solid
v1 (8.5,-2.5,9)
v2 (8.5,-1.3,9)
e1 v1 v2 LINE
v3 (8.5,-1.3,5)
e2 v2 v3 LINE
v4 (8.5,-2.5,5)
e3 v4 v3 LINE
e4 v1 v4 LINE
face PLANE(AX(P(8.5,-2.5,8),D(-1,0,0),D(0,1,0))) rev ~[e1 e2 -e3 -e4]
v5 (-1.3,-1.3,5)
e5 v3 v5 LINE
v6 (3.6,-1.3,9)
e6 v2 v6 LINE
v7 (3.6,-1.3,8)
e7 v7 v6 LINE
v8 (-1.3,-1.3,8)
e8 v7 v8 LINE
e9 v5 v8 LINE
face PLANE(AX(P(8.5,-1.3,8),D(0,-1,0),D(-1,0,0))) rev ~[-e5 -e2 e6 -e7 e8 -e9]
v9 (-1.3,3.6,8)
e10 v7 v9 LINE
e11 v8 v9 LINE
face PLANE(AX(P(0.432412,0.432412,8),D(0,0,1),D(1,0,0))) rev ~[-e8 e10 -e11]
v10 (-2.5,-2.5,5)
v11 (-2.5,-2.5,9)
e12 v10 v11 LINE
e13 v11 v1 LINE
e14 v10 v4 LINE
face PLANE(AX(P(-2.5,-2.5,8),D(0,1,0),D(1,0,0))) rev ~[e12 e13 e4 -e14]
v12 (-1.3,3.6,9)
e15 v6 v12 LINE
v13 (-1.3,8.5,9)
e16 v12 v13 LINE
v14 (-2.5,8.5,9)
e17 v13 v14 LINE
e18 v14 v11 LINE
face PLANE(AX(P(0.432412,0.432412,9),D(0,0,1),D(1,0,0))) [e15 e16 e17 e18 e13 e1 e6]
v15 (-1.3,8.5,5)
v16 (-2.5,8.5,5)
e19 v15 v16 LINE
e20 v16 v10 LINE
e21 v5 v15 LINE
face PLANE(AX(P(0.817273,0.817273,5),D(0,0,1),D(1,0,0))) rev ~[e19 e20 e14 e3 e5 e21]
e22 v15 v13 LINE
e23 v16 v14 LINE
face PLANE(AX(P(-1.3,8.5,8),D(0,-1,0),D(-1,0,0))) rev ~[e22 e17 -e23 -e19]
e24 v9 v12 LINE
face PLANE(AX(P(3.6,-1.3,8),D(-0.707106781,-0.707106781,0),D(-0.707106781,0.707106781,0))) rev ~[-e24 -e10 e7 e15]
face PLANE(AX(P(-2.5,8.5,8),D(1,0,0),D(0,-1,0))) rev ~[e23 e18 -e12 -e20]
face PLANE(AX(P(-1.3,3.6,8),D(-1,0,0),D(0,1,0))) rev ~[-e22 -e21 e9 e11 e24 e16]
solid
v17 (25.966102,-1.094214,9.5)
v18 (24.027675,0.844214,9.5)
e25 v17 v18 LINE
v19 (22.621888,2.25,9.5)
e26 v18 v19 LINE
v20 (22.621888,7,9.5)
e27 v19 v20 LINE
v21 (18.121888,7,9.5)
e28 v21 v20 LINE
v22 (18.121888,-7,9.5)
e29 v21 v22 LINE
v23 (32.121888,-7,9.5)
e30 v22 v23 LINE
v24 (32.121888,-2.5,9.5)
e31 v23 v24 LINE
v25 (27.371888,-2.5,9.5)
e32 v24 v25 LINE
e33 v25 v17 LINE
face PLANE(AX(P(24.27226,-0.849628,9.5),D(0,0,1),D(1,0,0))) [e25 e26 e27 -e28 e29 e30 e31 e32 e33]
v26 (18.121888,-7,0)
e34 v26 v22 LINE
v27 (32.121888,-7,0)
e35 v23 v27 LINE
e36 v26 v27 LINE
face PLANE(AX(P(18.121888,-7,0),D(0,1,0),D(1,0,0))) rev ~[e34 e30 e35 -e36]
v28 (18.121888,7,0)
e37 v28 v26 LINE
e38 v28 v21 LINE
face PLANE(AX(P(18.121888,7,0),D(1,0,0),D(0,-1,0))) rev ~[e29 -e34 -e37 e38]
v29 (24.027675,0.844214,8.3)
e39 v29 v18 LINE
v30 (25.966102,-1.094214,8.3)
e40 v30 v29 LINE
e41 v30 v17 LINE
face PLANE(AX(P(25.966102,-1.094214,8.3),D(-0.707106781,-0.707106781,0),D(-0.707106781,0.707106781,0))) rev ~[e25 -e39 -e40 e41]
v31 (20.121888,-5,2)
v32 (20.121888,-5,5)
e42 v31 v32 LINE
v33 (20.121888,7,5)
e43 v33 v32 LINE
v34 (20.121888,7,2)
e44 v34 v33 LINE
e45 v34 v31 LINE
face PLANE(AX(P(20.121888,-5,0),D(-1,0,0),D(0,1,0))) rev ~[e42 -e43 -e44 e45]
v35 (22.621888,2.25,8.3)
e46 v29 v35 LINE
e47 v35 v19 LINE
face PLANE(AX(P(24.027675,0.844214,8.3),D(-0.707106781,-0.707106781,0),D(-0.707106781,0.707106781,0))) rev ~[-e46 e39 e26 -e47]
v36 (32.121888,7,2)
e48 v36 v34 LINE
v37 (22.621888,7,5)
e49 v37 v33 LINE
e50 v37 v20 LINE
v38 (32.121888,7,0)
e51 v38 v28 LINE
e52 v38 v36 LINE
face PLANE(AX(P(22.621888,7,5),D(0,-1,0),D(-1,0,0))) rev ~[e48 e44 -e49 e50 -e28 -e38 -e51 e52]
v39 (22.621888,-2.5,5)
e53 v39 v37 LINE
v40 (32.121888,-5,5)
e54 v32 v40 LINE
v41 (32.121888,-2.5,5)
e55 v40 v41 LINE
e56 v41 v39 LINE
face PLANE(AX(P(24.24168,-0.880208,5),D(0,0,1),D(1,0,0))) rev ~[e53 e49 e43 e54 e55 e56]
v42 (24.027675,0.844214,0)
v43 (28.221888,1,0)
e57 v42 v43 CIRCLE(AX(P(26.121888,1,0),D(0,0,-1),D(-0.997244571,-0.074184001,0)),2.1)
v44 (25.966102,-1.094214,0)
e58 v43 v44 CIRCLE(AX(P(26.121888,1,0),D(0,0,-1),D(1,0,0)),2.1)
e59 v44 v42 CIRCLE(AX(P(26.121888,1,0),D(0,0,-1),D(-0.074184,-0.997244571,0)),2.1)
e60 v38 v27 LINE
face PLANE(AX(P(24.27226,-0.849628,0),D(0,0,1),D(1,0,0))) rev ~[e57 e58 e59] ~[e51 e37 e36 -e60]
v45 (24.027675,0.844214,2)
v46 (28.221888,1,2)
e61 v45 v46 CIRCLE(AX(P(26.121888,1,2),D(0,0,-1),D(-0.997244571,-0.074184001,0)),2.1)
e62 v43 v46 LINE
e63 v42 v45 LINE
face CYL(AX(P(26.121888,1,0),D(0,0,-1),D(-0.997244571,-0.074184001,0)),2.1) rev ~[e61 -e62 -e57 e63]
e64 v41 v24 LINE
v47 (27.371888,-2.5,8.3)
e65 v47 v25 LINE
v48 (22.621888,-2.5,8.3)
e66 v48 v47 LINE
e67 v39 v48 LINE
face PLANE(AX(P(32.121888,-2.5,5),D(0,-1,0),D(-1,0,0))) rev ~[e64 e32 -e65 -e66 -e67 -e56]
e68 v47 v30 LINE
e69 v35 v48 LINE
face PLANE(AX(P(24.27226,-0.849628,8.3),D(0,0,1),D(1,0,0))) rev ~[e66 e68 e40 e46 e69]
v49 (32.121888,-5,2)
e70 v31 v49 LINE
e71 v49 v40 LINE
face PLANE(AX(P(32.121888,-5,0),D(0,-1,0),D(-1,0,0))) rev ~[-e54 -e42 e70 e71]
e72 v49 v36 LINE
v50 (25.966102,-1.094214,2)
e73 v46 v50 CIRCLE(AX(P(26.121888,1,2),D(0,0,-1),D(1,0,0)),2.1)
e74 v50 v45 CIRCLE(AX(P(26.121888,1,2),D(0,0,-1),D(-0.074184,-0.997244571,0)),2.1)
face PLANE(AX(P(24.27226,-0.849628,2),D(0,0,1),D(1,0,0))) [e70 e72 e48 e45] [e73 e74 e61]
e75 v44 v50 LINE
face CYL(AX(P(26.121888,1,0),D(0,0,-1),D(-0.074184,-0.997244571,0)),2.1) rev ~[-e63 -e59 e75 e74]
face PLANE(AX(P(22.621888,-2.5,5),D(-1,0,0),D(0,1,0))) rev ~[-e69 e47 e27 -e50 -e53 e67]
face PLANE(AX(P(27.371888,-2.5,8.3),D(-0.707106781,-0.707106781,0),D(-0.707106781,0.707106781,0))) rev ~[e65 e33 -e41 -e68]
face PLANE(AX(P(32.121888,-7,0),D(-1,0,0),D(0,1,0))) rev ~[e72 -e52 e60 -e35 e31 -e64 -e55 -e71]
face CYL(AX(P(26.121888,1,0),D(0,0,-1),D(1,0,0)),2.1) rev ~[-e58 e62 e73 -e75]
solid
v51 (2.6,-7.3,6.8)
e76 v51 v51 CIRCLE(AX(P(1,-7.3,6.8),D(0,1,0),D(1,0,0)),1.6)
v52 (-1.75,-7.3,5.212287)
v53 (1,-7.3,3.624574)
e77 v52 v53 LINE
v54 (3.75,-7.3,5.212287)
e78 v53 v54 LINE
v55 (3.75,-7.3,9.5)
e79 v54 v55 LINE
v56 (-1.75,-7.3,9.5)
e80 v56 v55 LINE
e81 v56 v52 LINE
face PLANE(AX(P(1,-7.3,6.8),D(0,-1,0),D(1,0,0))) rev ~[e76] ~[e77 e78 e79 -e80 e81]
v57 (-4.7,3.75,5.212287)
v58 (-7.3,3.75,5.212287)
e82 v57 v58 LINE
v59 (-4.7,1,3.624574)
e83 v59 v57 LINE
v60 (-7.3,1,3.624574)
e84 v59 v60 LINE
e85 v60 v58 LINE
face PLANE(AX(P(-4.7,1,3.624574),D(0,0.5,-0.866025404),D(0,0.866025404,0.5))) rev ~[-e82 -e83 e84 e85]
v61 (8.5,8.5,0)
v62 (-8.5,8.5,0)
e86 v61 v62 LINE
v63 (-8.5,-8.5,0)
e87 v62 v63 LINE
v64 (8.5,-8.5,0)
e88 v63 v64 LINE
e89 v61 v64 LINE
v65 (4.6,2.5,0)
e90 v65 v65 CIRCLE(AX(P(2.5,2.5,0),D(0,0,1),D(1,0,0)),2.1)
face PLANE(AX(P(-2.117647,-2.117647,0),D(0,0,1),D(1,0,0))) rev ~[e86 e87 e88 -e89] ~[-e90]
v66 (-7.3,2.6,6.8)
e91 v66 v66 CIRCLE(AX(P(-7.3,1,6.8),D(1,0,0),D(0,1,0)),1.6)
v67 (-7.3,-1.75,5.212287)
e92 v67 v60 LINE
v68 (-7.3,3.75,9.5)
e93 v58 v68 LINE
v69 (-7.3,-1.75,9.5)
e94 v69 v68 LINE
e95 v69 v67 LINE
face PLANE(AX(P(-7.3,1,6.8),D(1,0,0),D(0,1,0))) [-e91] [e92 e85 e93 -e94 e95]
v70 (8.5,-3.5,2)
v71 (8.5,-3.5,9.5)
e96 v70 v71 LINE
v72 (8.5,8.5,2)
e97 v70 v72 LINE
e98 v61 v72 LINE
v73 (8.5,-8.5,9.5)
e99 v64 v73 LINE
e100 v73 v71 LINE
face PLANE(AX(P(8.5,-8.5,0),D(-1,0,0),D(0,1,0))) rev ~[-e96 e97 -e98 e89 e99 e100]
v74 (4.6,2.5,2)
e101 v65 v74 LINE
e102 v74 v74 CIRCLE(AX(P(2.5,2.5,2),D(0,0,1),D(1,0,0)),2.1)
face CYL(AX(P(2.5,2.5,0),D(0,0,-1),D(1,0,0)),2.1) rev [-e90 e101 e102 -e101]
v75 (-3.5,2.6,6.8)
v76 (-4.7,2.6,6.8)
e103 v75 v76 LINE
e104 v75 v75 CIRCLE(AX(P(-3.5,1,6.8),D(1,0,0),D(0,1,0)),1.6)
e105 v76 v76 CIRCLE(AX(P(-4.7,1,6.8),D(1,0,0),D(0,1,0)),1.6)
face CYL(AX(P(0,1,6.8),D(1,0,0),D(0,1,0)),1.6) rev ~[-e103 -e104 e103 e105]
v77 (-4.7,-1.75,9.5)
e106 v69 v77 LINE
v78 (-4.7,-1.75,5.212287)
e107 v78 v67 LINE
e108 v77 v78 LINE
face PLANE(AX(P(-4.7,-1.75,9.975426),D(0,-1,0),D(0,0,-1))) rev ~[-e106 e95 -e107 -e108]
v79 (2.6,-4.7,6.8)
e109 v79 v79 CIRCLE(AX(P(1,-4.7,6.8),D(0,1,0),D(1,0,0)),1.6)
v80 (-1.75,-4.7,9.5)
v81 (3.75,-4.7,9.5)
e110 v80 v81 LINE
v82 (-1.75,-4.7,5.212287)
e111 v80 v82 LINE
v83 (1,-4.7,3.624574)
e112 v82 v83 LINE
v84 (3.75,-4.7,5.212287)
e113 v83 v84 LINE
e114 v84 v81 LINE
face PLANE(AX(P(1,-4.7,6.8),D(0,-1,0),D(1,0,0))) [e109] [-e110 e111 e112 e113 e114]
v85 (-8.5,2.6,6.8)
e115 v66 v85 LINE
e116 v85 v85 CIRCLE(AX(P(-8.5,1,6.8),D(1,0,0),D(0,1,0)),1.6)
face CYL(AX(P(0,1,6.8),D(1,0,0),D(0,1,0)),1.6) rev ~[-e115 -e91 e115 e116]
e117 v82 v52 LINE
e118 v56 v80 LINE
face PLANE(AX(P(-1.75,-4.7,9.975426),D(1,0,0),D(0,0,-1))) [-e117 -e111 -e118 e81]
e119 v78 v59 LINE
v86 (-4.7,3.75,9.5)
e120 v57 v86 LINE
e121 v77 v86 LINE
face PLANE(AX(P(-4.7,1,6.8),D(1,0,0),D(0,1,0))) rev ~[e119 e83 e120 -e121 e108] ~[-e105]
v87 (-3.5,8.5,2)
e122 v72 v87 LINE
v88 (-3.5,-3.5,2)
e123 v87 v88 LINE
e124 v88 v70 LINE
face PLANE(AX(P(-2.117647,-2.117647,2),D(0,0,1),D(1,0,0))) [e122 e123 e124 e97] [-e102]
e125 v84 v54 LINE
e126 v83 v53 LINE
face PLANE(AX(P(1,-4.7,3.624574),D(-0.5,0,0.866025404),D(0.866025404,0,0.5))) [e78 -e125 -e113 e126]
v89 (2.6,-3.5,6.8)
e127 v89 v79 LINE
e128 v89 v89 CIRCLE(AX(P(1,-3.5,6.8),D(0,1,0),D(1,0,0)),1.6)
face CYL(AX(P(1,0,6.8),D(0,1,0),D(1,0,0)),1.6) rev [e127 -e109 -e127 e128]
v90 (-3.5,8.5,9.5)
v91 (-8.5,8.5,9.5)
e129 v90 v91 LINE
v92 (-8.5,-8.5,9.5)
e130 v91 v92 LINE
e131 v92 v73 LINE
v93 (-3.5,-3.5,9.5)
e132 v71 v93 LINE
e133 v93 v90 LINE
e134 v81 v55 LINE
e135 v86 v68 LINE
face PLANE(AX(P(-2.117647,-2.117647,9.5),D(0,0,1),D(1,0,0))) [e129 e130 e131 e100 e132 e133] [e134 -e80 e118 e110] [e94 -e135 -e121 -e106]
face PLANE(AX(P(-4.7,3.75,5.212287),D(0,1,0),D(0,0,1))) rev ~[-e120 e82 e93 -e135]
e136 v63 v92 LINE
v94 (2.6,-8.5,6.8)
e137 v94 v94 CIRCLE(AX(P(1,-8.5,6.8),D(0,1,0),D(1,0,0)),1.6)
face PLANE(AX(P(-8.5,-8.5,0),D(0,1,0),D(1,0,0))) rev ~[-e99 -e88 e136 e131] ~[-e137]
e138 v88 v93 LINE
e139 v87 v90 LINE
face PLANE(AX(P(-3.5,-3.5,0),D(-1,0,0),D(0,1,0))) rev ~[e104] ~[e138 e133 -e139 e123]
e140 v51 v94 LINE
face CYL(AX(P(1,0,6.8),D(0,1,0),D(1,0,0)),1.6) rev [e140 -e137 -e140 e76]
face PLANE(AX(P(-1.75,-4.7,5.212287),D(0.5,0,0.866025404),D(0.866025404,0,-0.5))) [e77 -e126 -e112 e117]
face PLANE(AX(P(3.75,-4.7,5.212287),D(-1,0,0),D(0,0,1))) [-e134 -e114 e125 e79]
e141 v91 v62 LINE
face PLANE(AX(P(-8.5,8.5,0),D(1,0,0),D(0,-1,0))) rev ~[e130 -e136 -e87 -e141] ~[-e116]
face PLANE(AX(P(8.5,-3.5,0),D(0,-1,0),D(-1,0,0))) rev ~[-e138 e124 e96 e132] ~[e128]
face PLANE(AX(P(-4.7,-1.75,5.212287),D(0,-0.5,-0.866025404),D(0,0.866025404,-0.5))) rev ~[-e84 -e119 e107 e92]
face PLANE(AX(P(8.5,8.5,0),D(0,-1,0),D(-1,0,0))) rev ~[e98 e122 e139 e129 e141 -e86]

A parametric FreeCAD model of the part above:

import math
import FreeCAD as App
import Part
import Sketcher
from FreeCAD import Vector
Q = App.Units.Quantity


def add_polygon(sketch, points):
    """Adds a closed chain of lines whose ends are joined by coincident constraints."""
    first, n = sketch.GeometryCount, len(points)
    for a, b in zip(points, points[1:] + points[:1]):
        sketch.addGeometry(Part.LineSegment(App.Vector(*a, 0), App.Vector(*b, 0)), False)
    for i in range(n):
        sketch.addConstraint(Sketcher.Constraint("Coincident", first + i, 2, first + (i + 1) % n, 1))

doc = App.newDocument("Part")
body = doc.addObject("PartDesign::Body", "Body")

sketch1 = body.newObject("Sketcher::SketchObject", "Sketch")
sketch1.AttachmentSupport = (doc.getObject("XY_Plane"), [""])
sketch1.MapMode = "FlatFace"
add_polygon(sketch1, [(-8.5, 8.5), (-8.5, -8.5), (8.5, -8.5), (8.5, 8.5)])
sketch1.addGeometry(Part.Circle(Vector(2.5, 2.5, 0), Vector(0, 0, 1), 2.1), False)
sketch1.addConstraint([
    Sketcher.Constraint("Vertical", 0),
    Sketcher.Constraint("Horizontal", 1),
    Sketcher.Constraint("Vertical", 2),
    Sketcher.Constraint("Horizontal", 3),
    Sketcher.Constraint("Symmetric", 0, 2, 2, 2, -1, 1),
    Sketcher.Constraint("Equal", 3, 0),
    Sketcher.Constraint("Diameter", 4, Q("4.2 mm")),
    Sketcher.Constraint("DistanceX", 1, 1, 1, 2, Q("17 mm")),
    Sketcher.Constraint("DistanceX", 0, 2, 4, 3, Q("11 mm")),
    Sketcher.Constraint("DistanceY", 0, 2, 4, 3, Q("11 mm")),
])
pad1 = body.newObject("PartDesign::Pad", "Pad")
pad1.Profile = sketch1
pad1.Length = 2

sketch2 = body.newObject("Sketcher::SketchObject", "Sketch001")
sketch2.AttachmentSupport = (doc.getObject("XY_Plane"), [""])
sketch2.MapMode = "FlatFace"
add_polygon(sketch2, [(-4, 8), (-8, 8), (-8, -8), (8, -8), (8, -4), (-4, -4)])
sketch2.addConstraint([
    Sketcher.Constraint("Horizontal", 0),
    Sketcher.Constraint("Vertical", 1),
    Sketcher.Constraint("Horizontal", 2),
    Sketcher.Constraint("Vertical", 3),
    Sketcher.Constraint("Horizontal", 4),
    Sketcher.Constraint("Vertical", 5),
    Sketcher.Constraint("Symmetric", 0, 2, 2, 2, -1, 1),
    Sketcher.Constraint("Equal", 2, 1),
    Sketcher.Constraint("Equal", 0, 3),
    Sketcher.Constraint("DistanceX", 0, 2, 0, 1, Q("5 mm")),
    Sketcher.Constraint("DistanceX", 2, 1, 2, 2, Q("17 mm")),
])
pad2 = body.newObject("PartDesign::Pad", "Pad001")
pad2.Profile = sketch2
pad2.Length = 9.5

sketch3 = body.newObject("Sketcher::SketchObject", "Sketch002")
sketch3.AttachmentSupport = (doc.getObject("YZ_Plane"), [""])
sketch3.MapMode = "FlatFace"
sketch3.addGeometry(Part.Circle(Vector(1, 6.8, 0), Vector(0, 0, 1), 1.6), False)
sketch3.addConstraint([
    Sketcher.Constraint("Diameter", 0, Q("3.2 mm")),
    Sketcher.Constraint("DistanceX", -1, 1, 0, 3, Q("1 mm")),
    Sketcher.Constraint("DistanceY", -1, 1, 0, 3, Q("6.8 mm")),
])
pocket1 = body.newObject("PartDesign::Pocket", "Pocket")
pocket1.Profile = sketch3
pocket1.Type = "ThroughAll"

sketch4 = body.newObject("Sketcher::SketchObject", "Sketch003")
sketch4.AttachmentSupport = (doc.getObject("YZ_Plane"), [""])
sketch4.MapMode = "FlatFace"
sketch4.AttachmentOffset = App.Placement(Vector(0, 0, -4.7), App.Rotation())
add_polygon(sketch4, [(3.8, 5.2), (3.8, 10), (-1.8, 10), (-1.8, 5.2), (1, 3.6)])
sketch4.addConstraint([
    Sketcher.Constraint("Vertical", 0),
    Sketcher.Constraint("Horizontal", 1),
    Sketcher.Constraint("Vertical", 2),
    Sketcher.Constraint("Horizontal", 2, 2, 4, 2),
    Sketcher.Constraint("Equal", 3, 4),
    Sketcher.Constraint("Angle", 3, Q("-30 deg")),
    Sketcher.Constraint("DistanceX", 1, 2, 1, 1, Q("5.5 mm")),
    Sketcher.Constraint("DistanceX", -1, 1, 3, 2, Q("1 mm")),
    Sketcher.Constraint("DistanceY", 0, 1, 0, 2, Q("4.76314 mm")),
    Sketcher.Constraint("DistanceY", -1, 1, 0, 2, Q("9.975426 mm")),
])
pocket2 = body.newObject("PartDesign::Pocket", "Pocket001")
pocket2.Profile = sketch4
pocket2.Length = 2.6

sketch5 = body.newObject("Sketcher::SketchObject", "Sketch004")
sketch5.AttachmentSupport = (doc.getObject("XZ_Plane"), [""])
sketch5.MapMode = "FlatFace"
sketch5.addGeometry(Part.Circle(Vector(1, 6.8, 0), Vector(0, 0, 1), 1.6), False)
sketch5.addConstraint([
    Sketcher.Constraint("Diameter", 0, Q("3.2 mm")),
    Sketcher.Constraint("DistanceX", -1, 1, 0, 3, Q("1 mm")),
    Sketcher.Constraint("DistanceY", -1, 1, 0, 3, Q("6.8 mm")),
])
pocket3 = body.newObject("PartDesign::Pocket", "Pocket002")
pocket3.Profile = sketch5
pocket3.Type = "ThroughAll"
pocket3.Reversed = True

sketch6 = body.newObject("Sketcher::SketchObject", "Sketch005")
sketch6.AttachmentSupport = (doc.getObject("XZ_Plane"), [""])
sketch6.MapMode = "FlatFace"
sketch6.AttachmentOffset = App.Placement(Vector(0, 0, 4.7), App.Rotation())
add_polygon(sketch6, [(-1.8, 5.2), (1, 3.6), (3.8, 5.2), (3.8, 10), (-1.8, 10)])
sketch6.addConstraint([
    Sketcher.Constraint("Vertical", 2),
    Sketcher.Constraint("Horizontal", 3),
    Sketcher.Constraint("Vertical", 4),
    Sketcher.Constraint("Horizontal", 1, 2, 4, 2),
    Sketcher.Constraint("Equal", 0, 1),
    Sketcher.Constraint("Angle", 0, Q("-30 deg")),
    Sketcher.Constraint("DistanceX", 3, 2, 3, 1, Q("5.5 mm")),
    Sketcher.Constraint("DistanceX", -1, 1, 0, 2, Q("1 mm")),
    Sketcher.Constraint("DistanceY", 2, 1, 2, 2, Q("4.76314 mm")),
    Sketcher.Constraint("DistanceY", -1, 1, 0, 2, Q("3.624574 mm")),
])
pocket4 = body.newObject("PartDesign::Pocket", "Pocket003")
pocket4.Profile = sketch6
pocket4.Length = 2.6
pocket4.Reversed = True
body2 = doc.addObject("PartDesign::Body", "Body001")

sketch7 = body2.newObject("Sketcher::SketchObject", "Sketch006")
sketch7.AttachmentSupport = (doc.getObject("XY_Plane001"), [""])
sketch7.MapMode = "FlatFace"
sketch7.AttachmentOffset = App.Placement(Vector(0, 0, 5), App.Rotation())
add_polygon(sketch7, [(-1.3, 8.5), (-2.5, 8.5), (-2.5, -2.5), (8.5, -2.5), (8.5, -1.3), (-1.3, -1.3)])
sketch7.addConstraint([
    Sketcher.Constraint("Horizontal", 0),
    Sketcher.Constraint("Vertical", 1),
    Sketcher.Constraint("Horizontal", 2),
    Sketcher.Constraint("Vertical", 3),
    Sketcher.Constraint("Horizontal", 4),
    Sketcher.Constraint("Vertical", 5),
    Sketcher.Constraint("Equal", 2, 1),
    Sketcher.Constraint("Equal", 0, 3),
    Sketcher.Constraint("DistanceX", 2, 1, 2, 2, Q("11 mm")),
    Sketcher.Constraint("DistanceX", 0, 2, 0, 1, Q("1.2 mm")),
    Sketcher.Constraint("DistanceX", 0, 2, -1, 1, Q("2.5 mm")),
    Sketcher.Constraint("DistanceY", -1, 1, 0, 2, Q("8.5 mm")),
])
pad3 = body2.newObject("PartDesign::Pad", "Pad002")
pad3.Profile = sketch7
pad3.Length = 3

sketch8 = body2.newObject("Sketcher::SketchObject", "Sketch007")
sketch8.AttachmentSupport = (doc.getObject("XY_Plane001"), [""])
sketch8.MapMode = "FlatFace"
sketch8.AttachmentOffset = App.Placement(Vector(0, 0, 8), App.Rotation())
add_polygon(sketch8, [(3.6, -1.3), (-1.3, 3.6), (-1.3, 8.5), (-2.5, 8.5), (-2.5, -2.5), (8.5, -2.5), (8.5, -1.3)])
sketch8.addConstraint([
    Sketcher.Constraint("Vertical", 1),
    Sketcher.Constraint("Horizontal", 2),
    Sketcher.Constraint("Vertical", 3),
    Sketcher.Constraint("Horizontal", 4),
    Sketcher.Constraint("Vertical", 5),
    Sketcher.Constraint("Horizontal", 6),
    Sketcher.Constraint("Equal", 6, 1),
    Sketcher.Constraint("Equal", 4, 3),
    Sketcher.Constraint("Equal", 2, 5),
    Sketcher.Constraint("DistanceX", 4, 1, 4, 2, Q("11 mm")),
    Sketcher.Constraint("DistanceX", 2, 2, 2, 1, Q("1.2 mm")),
    Sketcher.Constraint("DistanceX", 6, 2, 6, 1, Q("4.9 mm")),
    Sketcher.Constraint("DistanceX", 0, 2, -1, 1, Q("1.3 mm")),
    Sketcher.Constraint("DistanceY", -1, 1, 0, 2, Q("3.6 mm")),
])
pad4 = body2.newObject("PartDesign::Pad", "Pad003")
pad4.Profile = sketch8
pad4.Length = 1
body3 = doc.addObject("PartDesign::Body", "Body002")

sketch9 = body3.newObject("Sketcher::SketchObject", "Sketch008")
sketch9.AttachmentSupport = (doc.getObject("XY_Plane002"), [""])
sketch9.MapMode = "FlatFace"
add_polygon(sketch9, [(32.1, 7), (18.1, 7), (18.1, -7), (32.1, -7)])
sketch9.addGeometry(Part.ArcOfCircle(Part.Circle(Vector(26.1, 1, 0), Vector(0, 0, 1), 2.1), math.radians(-94), math.radians(0)), False)
sketch9.addGeometry(Part.ArcOfCircle(Part.Circle(Vector(26.1, 1, 0), Vector(0, 0, 1), 2.1), math.radians(-176), math.radians(-94)), False)
sketch9.addGeometry(Part.ArcOfCircle(Part.Circle(Vector(26.1, 1, 0), Vector(0, 0, 1), 2.1), math.radians(0), math.radians(184)), False)
sketch9.addConstraint([
    Sketcher.Constraint("Tangent", 4, 1, 5, 2),
    Sketcher.Constraint("Tangent", 5, 1, 6, 2),
    Sketcher.Constraint("Tangent", 6, 1, 4, 2),
    Sketcher.Constraint("Horizontal", 0),
    Sketcher.Constraint("Vertical", 1),
    Sketcher.Constraint("Horizontal", 2),
    Sketcher.Constraint("Vertical", 3),
    Sketcher.Constraint("Horizontal", 5, 3, 6, 1),
    Sketcher.Constraint("Equal", 2, 1),
    Sketcher.Constraint("Radius", 4, Q("2.1 mm")),
    Sketcher.Constraint("DistanceX", 0, 2, 0, 1, Q("14 mm")),
    Sketcher.Constraint("DistanceY", -1, 1, 4, 3, Q("1 mm")),
    Sketcher.Constraint("DistanceY", -1, 1, 0, 2, Q("7 mm")),
    Sketcher.Constraint("DistanceX", 0, 2, 4, 3, Q("8 mm")),
    Sketcher.Constraint("DistanceX", -1, 1, 4, 3, Q("26.121888 mm")),
    Sketcher.Constraint("DistanceX", -1, 1, 4, 1, Q("25.966102 mm")),
    Sketcher.Constraint("DistanceX", -1, 1, 5, 1, Q("24.027675 mm")),
])
pad5 = body3.newObject("PartDesign::Pad", "Pad004")
pad5.Profile = sketch9
pad5.Length = 2

sketch10 = body3.newObject("Sketcher::SketchObject", "Sketch009")
sketch10.AttachmentSupport = (doc.getObject("XY_Plane002"), [""])
sketch10.MapMode = "FlatFace"
add_polygon(sketch10, [(20.1, 7), (18.1, 7), (18.1, -7), (32.1, -7), (32.1, -5), (20.1, -5)])
sketch10.addConstraint([
    Sketcher.Constraint("Horizontal", 0),
    Sketcher.Constraint("Vertical", 1),
    Sketcher.Constraint("Horizontal", 2),
    Sketcher.Constraint("Vertical", 3),
    Sketcher.Constraint("Horizontal", 4),
    Sketcher.Constraint("Vertical", 5),
    Sketcher.Constraint("Equal", 2, 1),
    Sketcher.Constraint("Equal", 0, 3),
    Sketcher.Constraint("DistanceX", 0, 2, 0, 1, Q("2 mm")),
    Sketcher.Constraint("DistanceX", 2, 1, 2, 2, Q("14 mm")),
    Sketcher.Constraint("DistanceY", -1, 1, 0, 2, Q("7 mm")),
    Sketcher.Constraint("DistanceX", -1, 1, 0, 2, Q("18.121888 mm")),
])
pad6 = body3.newObject("PartDesign::Pad", "Pad005")
pad6.Profile = sketch10
pad6.Length = 9.5

sketch11 = body3.newObject("Sketcher::SketchObject", "Sketch010")
sketch11.AttachmentSupport = (doc.getObject("XY_Plane002"), [""])
sketch11.MapMode = "FlatFace"
sketch11.AttachmentOffset = App.Placement(Vector(0, 0, 5), App.Rotation())
add_polygon(sketch11, [(22.6, 7), (20.1, 7), (20.1, -5), (32.1, -5), (32.1, -2.5), (22.6, -2.5)])
sketch11.addConstraint([
    Sketcher.Constraint("Horizontal", 0),
    Sketcher.Constraint("Vertical", 1),
    Sketcher.Constraint("Horizontal", 2),
    Sketcher.Constraint("Vertical", 3),
    Sketcher.Constraint("Horizontal", 4),
    Sketcher.Constraint("Vertical", 5),
    Sketcher.Constraint("Equal", 2, 1),
    Sketcher.Constraint("Equal", 0, 3),
    Sketcher.Constraint("DistanceX", 2, 1, 2, 2, Q("12 mm")),
    Sketcher.Constraint("DistanceX", 0, 2, 0, 1, Q("2.5 mm")),
    Sketcher.Constraint("DistanceY", -1, 1, 0, 2, Q("7 mm")),
    Sketcher.Constraint("DistanceX", -1, 1, 0, 2, Q("20.121888 mm")),
])
pad7 = body3.newObject("PartDesign::Pad", "Pad006")
pad7.Profile = sketch11
pad7.Length = 4.5

sketch12 = body3.newObject("Sketcher::SketchObject", "Sketch011")
sketch12.AttachmentSupport = (doc.getObject("XY_Plane002"), [""])
sketch12.MapMode = "FlatFace"
sketch12.AttachmentOffset = App.Placement(Vector(0, 0, 8.3), App.Rotation())
add_polygon(sketch12, [(24, 0.8), (22.6, 2.2), (22.6, -2.5), (27.4, -2.5), (26, -1.1)])
sketch12.addConstraint([
    Sketcher.Constraint("Vertical", 1),
    Sketcher.Constraint("Horizontal", 2),
    Sketcher.Constraint("Parallel", 0, 3),
    Sketcher.Constraint("Parallel", 3, 4),
    Sketcher.Constraint("Equal", 2, 1),
    Sketcher.Constraint("Equal", 0, 3),
    Sketcher.Constraint("DistanceX", 2, 1, 2, 2, Q("4.75 mm")),
    Sketcher.Constraint("DistanceY", 1, 2, -1, 1, Q("2.5 mm")),
    Sketcher.Constraint("Distance", 4, Q("2.74135 mm")),
    Sketcher.Constraint("DistanceX", -1, 1, 0, 2, Q("22.621888 mm")),
])
pad8 = body3.newObject("PartDesign::Pad", "Pad007")
pad8.Profile = sketch12
pad8.Length = 1.2

doc.recompute()
